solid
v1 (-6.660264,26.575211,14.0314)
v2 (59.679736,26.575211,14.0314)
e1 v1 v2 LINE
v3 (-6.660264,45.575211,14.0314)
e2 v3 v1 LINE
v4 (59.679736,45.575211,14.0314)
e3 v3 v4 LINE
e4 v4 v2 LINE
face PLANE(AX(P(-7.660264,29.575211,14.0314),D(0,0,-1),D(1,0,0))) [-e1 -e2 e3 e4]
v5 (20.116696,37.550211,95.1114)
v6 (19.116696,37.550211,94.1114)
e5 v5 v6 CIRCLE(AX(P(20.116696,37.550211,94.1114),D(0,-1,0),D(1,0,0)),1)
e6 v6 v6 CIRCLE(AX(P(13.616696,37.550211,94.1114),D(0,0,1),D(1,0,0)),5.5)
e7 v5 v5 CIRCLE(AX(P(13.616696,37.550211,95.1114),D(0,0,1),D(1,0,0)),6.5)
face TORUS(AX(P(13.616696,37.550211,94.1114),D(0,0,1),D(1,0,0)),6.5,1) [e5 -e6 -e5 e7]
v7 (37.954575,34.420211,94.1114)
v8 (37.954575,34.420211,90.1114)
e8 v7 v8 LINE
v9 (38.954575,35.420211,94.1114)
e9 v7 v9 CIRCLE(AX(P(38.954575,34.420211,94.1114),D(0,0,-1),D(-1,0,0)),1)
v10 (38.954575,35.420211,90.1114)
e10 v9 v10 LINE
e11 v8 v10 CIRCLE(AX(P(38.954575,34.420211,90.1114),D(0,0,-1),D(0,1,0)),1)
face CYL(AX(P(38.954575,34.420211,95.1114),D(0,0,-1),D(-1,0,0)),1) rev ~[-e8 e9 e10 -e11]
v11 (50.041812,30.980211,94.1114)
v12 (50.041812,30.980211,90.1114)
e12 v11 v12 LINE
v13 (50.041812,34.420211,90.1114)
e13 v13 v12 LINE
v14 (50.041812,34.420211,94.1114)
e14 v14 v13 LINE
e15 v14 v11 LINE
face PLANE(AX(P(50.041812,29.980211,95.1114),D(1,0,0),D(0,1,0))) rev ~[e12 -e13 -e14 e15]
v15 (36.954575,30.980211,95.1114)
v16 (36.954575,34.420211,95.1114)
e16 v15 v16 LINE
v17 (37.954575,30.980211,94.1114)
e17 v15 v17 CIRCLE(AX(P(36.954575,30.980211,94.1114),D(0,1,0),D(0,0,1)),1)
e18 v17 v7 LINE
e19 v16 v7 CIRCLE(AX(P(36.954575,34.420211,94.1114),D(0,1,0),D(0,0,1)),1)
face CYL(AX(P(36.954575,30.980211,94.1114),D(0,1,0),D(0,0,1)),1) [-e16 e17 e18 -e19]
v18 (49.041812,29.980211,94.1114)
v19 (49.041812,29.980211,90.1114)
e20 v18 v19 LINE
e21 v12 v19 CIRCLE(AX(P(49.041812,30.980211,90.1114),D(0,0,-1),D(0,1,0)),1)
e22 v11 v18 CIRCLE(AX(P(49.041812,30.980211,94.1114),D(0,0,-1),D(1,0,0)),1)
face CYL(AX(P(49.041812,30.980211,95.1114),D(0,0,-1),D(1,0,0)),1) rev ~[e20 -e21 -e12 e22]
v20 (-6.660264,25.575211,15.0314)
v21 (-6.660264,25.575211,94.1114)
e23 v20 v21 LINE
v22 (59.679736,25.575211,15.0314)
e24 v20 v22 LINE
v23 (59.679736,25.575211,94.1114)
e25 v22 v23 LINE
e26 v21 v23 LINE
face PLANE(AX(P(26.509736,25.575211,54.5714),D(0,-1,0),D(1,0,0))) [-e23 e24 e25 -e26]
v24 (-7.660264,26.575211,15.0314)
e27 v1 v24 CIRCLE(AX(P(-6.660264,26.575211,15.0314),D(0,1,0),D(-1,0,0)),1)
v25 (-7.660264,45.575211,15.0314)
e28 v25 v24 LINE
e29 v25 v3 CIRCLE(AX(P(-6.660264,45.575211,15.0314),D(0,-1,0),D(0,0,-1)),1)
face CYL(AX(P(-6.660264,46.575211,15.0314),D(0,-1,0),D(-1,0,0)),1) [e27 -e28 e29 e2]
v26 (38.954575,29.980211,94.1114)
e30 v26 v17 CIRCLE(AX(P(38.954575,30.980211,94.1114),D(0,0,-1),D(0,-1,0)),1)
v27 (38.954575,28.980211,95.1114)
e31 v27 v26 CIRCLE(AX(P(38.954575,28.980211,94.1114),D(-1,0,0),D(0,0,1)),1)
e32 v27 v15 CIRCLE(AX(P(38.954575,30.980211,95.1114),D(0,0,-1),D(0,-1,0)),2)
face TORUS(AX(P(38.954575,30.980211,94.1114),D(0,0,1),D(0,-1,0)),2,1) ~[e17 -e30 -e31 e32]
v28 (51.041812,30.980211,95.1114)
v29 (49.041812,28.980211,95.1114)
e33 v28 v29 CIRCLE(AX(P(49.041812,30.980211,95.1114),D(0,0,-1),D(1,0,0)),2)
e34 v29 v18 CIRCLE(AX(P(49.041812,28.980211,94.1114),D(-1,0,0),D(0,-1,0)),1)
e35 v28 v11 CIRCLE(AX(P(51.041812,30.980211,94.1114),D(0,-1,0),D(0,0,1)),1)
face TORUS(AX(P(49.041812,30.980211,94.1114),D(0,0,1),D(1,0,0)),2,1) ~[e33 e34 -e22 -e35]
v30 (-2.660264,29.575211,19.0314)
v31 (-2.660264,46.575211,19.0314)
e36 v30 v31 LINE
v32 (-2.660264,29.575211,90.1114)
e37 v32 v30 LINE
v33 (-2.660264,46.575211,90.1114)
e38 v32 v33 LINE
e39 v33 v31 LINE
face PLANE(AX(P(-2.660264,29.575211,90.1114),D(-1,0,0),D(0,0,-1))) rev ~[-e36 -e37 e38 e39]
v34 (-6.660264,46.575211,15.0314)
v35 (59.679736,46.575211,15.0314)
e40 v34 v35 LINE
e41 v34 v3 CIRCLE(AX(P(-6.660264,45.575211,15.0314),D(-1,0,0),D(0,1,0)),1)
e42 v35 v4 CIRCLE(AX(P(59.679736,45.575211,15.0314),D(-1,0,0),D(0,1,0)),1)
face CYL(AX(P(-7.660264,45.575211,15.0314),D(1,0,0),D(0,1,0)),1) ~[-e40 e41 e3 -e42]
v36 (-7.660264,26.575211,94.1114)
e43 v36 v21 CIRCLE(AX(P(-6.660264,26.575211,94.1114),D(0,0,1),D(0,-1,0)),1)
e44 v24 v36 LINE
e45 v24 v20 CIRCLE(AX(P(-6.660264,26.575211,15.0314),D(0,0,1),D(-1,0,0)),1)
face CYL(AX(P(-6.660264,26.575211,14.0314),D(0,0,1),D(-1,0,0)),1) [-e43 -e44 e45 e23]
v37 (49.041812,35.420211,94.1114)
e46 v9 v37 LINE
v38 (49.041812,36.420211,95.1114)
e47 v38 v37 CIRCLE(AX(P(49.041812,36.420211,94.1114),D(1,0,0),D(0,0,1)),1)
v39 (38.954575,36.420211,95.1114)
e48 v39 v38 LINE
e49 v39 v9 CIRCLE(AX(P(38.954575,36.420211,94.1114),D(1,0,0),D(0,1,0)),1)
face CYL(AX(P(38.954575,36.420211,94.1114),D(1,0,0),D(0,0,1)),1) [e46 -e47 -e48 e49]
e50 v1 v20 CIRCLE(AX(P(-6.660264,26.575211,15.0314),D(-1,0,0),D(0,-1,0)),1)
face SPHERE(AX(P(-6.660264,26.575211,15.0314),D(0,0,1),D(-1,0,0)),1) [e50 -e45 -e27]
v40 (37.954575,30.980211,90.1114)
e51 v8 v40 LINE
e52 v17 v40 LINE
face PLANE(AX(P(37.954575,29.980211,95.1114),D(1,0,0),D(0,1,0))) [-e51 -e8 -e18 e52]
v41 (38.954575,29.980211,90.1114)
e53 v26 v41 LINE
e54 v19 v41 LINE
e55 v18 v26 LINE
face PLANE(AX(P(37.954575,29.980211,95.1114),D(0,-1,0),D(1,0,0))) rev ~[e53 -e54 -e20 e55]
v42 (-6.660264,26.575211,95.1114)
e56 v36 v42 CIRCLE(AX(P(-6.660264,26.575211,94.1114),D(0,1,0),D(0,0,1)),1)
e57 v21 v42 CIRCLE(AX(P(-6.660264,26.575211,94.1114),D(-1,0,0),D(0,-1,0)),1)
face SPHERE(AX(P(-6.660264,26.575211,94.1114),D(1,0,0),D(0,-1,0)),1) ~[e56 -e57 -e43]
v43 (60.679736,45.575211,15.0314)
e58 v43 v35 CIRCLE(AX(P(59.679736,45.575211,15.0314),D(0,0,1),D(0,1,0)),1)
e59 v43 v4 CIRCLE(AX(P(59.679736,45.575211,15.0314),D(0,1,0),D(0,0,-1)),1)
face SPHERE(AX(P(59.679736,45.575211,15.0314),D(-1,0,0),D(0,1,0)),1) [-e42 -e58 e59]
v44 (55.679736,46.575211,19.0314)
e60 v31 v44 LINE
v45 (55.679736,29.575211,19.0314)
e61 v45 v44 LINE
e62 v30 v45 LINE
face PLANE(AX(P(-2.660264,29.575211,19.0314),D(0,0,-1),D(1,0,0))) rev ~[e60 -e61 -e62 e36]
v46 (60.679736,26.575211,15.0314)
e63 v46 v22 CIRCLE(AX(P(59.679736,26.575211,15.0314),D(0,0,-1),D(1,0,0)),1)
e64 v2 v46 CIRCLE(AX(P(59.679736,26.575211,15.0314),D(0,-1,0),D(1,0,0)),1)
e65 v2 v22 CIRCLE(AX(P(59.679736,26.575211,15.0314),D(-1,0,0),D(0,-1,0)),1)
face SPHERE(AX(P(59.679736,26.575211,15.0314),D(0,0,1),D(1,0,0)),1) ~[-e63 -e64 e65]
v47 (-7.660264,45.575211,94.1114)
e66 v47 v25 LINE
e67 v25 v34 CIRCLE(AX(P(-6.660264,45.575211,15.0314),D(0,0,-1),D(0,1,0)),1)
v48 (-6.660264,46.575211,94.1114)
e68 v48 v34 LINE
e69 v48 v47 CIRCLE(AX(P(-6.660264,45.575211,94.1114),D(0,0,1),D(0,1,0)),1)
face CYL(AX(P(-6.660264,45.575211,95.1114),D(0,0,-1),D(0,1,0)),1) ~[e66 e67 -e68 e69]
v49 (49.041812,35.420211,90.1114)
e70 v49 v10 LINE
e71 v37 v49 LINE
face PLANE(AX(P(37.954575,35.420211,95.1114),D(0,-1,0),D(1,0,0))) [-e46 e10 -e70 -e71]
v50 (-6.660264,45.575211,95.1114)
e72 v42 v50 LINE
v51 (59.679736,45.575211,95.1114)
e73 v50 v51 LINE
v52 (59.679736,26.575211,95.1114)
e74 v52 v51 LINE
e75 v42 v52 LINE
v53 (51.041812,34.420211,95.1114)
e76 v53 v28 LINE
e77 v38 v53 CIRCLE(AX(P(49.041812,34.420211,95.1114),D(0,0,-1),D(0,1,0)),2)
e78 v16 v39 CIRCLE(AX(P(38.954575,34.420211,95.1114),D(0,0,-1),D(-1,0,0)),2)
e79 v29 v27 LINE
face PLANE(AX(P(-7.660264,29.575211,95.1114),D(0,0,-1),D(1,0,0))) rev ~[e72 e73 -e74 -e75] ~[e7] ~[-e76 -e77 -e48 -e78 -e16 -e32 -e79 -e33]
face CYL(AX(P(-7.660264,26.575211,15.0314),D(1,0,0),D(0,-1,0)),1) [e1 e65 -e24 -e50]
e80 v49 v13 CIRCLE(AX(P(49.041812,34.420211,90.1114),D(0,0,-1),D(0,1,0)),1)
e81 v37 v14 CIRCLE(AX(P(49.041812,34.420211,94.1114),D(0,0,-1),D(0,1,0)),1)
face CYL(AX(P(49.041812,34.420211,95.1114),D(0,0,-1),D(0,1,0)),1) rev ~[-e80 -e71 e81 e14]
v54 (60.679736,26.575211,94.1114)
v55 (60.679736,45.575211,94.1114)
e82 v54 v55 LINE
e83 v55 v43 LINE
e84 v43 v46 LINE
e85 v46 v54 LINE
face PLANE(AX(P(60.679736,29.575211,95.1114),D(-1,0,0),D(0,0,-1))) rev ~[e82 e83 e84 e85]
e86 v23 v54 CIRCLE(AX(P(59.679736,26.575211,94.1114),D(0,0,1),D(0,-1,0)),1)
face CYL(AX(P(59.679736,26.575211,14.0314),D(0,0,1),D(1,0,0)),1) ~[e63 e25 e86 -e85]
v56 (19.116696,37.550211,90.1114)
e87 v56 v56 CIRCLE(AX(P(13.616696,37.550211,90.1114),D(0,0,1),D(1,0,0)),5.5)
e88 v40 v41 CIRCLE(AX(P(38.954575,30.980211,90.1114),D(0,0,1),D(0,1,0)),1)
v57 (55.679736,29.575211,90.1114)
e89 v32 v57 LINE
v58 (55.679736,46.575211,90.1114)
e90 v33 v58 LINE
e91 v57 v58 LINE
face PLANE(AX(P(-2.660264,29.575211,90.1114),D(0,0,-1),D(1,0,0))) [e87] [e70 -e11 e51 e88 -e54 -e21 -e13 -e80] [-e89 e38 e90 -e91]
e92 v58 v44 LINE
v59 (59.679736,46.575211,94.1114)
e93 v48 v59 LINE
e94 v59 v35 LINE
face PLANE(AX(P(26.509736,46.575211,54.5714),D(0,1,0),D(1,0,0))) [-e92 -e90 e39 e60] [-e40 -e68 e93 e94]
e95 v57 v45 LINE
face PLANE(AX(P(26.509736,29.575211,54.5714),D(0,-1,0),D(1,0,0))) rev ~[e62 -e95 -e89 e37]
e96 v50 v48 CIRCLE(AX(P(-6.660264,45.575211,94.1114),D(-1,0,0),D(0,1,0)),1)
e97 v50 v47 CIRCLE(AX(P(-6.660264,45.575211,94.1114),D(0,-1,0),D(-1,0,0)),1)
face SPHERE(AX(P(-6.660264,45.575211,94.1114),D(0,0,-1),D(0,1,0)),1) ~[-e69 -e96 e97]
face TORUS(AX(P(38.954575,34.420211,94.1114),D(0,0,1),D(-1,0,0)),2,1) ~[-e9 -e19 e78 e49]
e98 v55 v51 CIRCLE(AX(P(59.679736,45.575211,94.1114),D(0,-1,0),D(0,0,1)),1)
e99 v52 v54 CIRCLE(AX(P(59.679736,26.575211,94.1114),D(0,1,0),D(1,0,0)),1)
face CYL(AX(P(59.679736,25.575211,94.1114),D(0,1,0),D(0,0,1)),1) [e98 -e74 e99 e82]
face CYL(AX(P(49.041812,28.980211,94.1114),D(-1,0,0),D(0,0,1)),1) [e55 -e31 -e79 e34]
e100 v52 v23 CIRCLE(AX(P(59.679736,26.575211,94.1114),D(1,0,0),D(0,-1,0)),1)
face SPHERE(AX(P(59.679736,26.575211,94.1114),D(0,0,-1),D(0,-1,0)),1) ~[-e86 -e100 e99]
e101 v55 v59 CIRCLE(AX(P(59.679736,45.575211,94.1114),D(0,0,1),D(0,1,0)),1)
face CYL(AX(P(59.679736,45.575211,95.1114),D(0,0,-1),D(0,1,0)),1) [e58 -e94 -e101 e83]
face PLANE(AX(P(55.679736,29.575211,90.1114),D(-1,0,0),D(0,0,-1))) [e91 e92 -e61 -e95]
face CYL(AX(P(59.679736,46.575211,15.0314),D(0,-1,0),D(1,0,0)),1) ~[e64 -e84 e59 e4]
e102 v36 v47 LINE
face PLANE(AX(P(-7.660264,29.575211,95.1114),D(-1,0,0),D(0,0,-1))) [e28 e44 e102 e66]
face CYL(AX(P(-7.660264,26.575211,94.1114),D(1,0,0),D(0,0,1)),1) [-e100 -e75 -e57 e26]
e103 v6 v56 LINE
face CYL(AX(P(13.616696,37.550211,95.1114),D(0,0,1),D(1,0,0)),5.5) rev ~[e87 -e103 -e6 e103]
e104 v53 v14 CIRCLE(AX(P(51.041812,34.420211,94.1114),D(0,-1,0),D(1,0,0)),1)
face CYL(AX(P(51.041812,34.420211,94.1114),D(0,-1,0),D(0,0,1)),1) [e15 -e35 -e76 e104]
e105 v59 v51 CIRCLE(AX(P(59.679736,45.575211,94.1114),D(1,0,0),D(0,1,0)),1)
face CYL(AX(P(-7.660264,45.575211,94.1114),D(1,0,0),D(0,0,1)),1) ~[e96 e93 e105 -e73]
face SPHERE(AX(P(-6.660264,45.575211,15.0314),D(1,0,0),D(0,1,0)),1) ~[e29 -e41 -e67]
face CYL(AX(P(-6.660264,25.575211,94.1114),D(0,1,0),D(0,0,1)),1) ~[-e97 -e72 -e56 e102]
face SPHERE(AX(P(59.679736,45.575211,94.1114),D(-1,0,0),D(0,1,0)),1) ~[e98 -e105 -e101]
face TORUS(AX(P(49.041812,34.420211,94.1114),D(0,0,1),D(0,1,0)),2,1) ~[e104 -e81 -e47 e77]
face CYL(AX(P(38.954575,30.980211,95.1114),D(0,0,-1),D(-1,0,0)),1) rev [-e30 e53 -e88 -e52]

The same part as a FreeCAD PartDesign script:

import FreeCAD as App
import Part
import Sketcher
from FreeCAD import Vector


def edges_at(feature, points):
    """Names of the edges that pass closest to the given points."""
    edges = feature.Shape.Edges
    near = lambda p: min(range(len(edges)), key=lambda i: edges[i].distToShape(Part.Vertex(*p))[0])
    return sorted({f"Edge{near(p) + 1}" for p in points})


def add_polygon(sketch, points):
    """Adds a closed chain of lines whose ends are joined by coincident constraints."""
    first, n = sketch.GeometryCount, len(points)
    for a, b in zip(points, points[1:] + points[:1]):
        sketch.addGeometry(Part.LineSegment(App.Vector(*a, 0), App.Vector(*b, 0)), False)
    for i in range(n):
        sketch.addConstraint(Sketcher.Constraint("Coincident", first + i, 2, first + (i + 1) % n, 1))

doc = App.newDocument("Part")
body = doc.addObject("PartDesign::Body", "Body")

# Sketch on XZ plane
sketch1 = body.newObject("Sketcher::SketchObject", "Sketch")
sketch1.AttachmentSupport = (doc.getObject("XZ_Plane"), [""])
sketch1.MapMode = "FlatFace"
sketch1.AttachmentOffset = App.Placement(Vector(0, 0, -29.575211), App.Rotation())
add_polygon(sketch1, [(-8, 95), (-8, 14), (61, 14), (61, 95)])  # lines 0-3
sketch1.addConstraint([
    Sketcher.Constraint("Vertical", 0),
    Sketcher.Constraint("Horizontal", 1),
    Sketcher.Constraint("Vertical", 2),
    Sketcher.Constraint("Horizontal", 3),
    Sketcher.Constraint("DistanceX", 1, 1, 1, 2, 68.34),
    Sketcher.Constraint("DistanceY", 0, 2, 0, 1, 81.08),
    Sketcher.Constraint("DistanceY", -1, 1, 0, 2, 14.0314),
    Sketcher.Constraint("DistanceX", 0, 2, -1, 1, 7.660264),
])
pad1 = body.newObject("PartDesign::Pad", "Pad")
pad1.Profile = sketch1
pad1.Length = 4

# Sketch on XZ plane
sketch2 = body.newObject("Sketcher::SketchObject", "Sketch001")
sketch2.AttachmentSupport = (doc.getObject("XZ_Plane"), [""])
sketch2.MapMode = "FlatFace"
sketch2.AttachmentOffset = App.Placement(Vector(0, 0, -29.575211), App.Rotation())
add_polygon(sketch2, [(-8, 14), (-8, 95), (61, 95), (61, 14)])  # lines 0-3
add_polygon(sketch2, [(56, 90), (-3, 90), (-3, 19), (56, 19)])  # lines 4-7
sketch2.addConstraint([
    Sketcher.Constraint("Vertical", 0),
    Sketcher.Constraint("Horizontal", 1),
    Sketcher.Constraint("Vertical", 2),
    Sketcher.Constraint("Horizontal", 3),
    Sketcher.Constraint("Horizontal", 4),
    Sketcher.Constraint("Vertical", 5),
    Sketcher.Constraint("Horizontal", 6),
    Sketcher.Constraint("Vertical", 7),
    Sketcher.Constraint("DistanceX", 0, 2, 4, 2, 5.0),
    Sketcher.Constraint("DistanceY", 4, 2, 0, 2, 5.0),
    Sketcher.Constraint("DistanceY", 3, 2, 5, 2, 5.0),
    Sketcher.Constraint("DistanceX", 6, 2, 2, 2, 5.0),
    Sketcher.Constraint("DistanceX", 1, 1, 1, 2, 68.34),
    Sketcher.Constraint("DistanceY", 0, 1, 0, 2, 81.08),
    Sketcher.Constraint("DistanceY", -1, 1, 0, 2, 95.1114),
    Sketcher.Constraint("DistanceX", 0, 2, -1, 1, 7.660264),
])
pad2 = body.newObject("PartDesign::Pad", "Pad001")
pad2.Profile = sketch2
pad2.Length = 17
pad2.Reversed = True

# Sketch on XY plane
sketch3 = body.newObject("Sketcher::SketchObject", "Sketch002")
sketch3.AttachmentSupport = (doc.getObject("XY_Plane"), [""])
sketch3.MapMode = "FlatFace"
sketch3.AttachmentOffset = App.Placement(Vector(0, 0, 95.1114), App.Rotation())
sketch3.addGeometry(Part.Circle(Vector(14, 38, 0), Vector(0, 0, 1), 6), False)  # 0
add_polygon(sketch3, [(38, 35), (38, 30), (50, 30), (50, 35)])  # lines 1-4
sketch3.addConstraint([
    Sketcher.Constraint("Vertical", 1),
    Sketcher.Constraint("Horizontal", 2),
    Sketcher.Constraint("Vertical", 3),
    Sketcher.Constraint("Horizontal", 4),
    Sketcher.Constraint("Diameter", 0, 11.0),
    Sketcher.Constraint("DistanceY", 1, 2, 1, 1, 5.44),
    Sketcher.Constraint("DistanceY", 1, 2, 0, 3, 7.57),
    Sketcher.Constraint("DistanceX", 2, 1, 2, 2, 12.087237),
    Sketcher.Constraint("DistanceY", -1, 1, 0, 3, 37.550211),
    Sketcher.Constraint("DistanceX", 0, 3, 1, 2, 24.337878),
    Sketcher.Constraint("DistanceX", -1, 1, 0, 3, 13.616696),
])
pocket1 = body.newObject("PartDesign::Pocket", "Pocket")
pocket1.Profile = sketch3
pocket1.Length = 8
doc.recompute()

fillet = body.newObject("PartDesign::Fillet", "Fillet")
fillet.Base = (pocket1, edges_at(pocket1, [
    (37.955, 29.98, 92.611),
    (37.955, 35.42, 92.611),
    (50.042, 35.42, 92.611),
    (50.042, 29.98, 92.611),
]))
fillet.Radius = 1
doc.recompute()

fillet2 = body.newObject("PartDesign::Fillet", "Fillet001")
fillet2.Base = (fillet, edges_at(fillet, [
    (60.68, 25.575, 54.571),
    (26.51, 46.575, 14.031),
    (-7.66, 46.575, 54.571),
    (26.51, 46.575, 95.111),
    (60.68, 46.575, 54.571),
    (26.51, 25.575, 95.111),
    (-7.66, 25.575, 54.571),
    (8.117, 37.55, 95.111),
    (37.955, 32.7, 95.111),
    (43.998, 35.42, 95.111),
    (50.042, 32.7, 95.111),
    (43.998, 29.98, 95.111),
    (38.247, 35.127, 95.111),
    (49.749, 35.127, 95.111),
    (49.749, 30.273, 95.111),
    (38.247, 30.273, 95.111),
    (-7.66, 36.075, 95.111),
    (60.68, 36.075, 95.111),
    (60.68, 36.075, 14.031),
    (-7.66, 36.075, 14.031),
    (26.51, 25.575, 14.031),
]))
fillet2.Radius = 1

doc.recompute()
